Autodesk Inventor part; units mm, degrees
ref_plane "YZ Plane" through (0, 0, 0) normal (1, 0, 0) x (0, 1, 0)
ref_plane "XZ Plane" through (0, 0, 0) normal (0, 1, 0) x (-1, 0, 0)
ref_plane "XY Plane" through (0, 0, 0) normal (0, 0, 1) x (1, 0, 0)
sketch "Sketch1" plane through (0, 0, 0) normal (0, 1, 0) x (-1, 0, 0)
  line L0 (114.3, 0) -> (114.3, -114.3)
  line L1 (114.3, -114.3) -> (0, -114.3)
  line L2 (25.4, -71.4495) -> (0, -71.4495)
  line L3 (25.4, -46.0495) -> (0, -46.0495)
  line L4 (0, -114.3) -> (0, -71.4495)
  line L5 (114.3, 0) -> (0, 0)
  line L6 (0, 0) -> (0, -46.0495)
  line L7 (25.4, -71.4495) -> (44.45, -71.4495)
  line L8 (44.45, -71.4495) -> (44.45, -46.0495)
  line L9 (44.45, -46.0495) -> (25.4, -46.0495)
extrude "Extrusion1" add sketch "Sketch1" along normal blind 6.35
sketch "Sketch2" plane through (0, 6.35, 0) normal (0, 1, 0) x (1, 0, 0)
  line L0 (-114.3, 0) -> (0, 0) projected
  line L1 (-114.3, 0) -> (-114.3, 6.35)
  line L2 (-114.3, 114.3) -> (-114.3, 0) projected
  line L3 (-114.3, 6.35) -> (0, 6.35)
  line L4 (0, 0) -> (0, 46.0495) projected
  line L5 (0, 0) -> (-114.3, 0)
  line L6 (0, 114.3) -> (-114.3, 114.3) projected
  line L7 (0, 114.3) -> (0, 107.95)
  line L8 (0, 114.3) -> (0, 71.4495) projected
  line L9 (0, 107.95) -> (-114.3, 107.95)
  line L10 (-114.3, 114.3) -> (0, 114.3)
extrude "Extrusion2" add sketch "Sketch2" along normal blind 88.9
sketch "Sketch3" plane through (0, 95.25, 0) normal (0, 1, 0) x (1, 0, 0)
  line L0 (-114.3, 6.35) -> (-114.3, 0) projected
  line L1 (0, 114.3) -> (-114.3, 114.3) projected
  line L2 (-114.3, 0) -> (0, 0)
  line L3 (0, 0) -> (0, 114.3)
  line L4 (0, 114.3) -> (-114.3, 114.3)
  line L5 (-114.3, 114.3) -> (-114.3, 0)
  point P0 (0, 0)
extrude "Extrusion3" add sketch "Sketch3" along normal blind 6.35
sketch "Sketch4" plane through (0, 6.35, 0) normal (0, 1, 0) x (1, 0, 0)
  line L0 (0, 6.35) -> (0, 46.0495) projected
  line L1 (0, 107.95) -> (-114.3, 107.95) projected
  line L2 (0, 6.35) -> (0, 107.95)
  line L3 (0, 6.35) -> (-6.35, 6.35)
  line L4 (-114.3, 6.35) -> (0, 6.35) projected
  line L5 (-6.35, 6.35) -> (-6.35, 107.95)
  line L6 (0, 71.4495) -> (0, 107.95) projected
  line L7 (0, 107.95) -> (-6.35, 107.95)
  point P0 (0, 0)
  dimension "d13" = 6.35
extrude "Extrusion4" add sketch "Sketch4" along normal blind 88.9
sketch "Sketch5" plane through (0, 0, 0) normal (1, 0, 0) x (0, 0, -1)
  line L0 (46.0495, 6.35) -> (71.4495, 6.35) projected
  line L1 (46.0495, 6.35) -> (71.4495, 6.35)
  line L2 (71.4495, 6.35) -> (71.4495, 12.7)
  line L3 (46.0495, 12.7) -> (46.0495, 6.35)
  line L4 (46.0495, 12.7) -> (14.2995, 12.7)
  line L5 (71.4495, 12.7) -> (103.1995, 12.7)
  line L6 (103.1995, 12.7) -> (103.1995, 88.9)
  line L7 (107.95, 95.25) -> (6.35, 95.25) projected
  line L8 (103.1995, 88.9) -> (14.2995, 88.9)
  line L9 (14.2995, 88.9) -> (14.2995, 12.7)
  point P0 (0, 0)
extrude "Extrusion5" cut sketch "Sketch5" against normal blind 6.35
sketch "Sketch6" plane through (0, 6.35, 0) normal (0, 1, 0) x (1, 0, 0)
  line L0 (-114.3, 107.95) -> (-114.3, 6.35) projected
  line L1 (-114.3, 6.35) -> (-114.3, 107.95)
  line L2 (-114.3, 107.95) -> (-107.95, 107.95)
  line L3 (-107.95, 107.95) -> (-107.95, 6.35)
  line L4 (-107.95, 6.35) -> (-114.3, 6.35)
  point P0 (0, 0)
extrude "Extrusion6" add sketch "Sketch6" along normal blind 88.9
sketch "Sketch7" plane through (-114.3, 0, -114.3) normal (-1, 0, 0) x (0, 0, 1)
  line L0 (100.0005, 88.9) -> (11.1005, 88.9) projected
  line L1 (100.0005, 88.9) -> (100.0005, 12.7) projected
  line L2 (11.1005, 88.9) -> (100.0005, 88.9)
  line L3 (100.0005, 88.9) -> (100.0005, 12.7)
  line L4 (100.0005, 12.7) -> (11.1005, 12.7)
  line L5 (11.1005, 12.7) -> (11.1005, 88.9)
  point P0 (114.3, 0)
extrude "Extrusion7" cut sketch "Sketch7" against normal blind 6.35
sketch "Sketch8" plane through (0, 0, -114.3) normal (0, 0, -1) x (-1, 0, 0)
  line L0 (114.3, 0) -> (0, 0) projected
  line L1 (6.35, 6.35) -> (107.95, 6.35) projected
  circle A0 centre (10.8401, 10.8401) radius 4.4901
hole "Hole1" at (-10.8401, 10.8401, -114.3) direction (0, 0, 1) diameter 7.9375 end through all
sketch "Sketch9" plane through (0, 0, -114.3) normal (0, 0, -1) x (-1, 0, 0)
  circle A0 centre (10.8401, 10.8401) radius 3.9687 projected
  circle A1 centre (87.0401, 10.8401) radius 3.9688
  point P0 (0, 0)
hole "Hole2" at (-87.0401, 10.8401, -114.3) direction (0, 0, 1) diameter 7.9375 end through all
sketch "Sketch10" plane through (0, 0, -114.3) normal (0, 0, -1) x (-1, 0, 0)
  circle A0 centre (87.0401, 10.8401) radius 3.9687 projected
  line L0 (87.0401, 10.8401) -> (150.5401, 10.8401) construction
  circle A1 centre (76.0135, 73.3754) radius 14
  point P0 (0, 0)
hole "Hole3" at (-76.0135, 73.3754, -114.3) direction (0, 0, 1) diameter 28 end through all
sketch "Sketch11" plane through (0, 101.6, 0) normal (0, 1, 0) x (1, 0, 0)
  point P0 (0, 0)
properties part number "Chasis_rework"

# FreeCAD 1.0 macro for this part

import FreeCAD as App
import Part
import Sketcher
from FreeCAD import Vector
Q = App.Units.Quantity

doc = App.newDocument("Part")
params = doc.addObject("Spreadsheet::Sheet", "Params")
for row, (alias, value) in enumerate([
    ("sketch1_height", "1 in"),
    ("sketch1_width", "4.5 in"),
    ("sketch1_width2", "1.75 in"),
    ("pad1_length", "0.25 in"),
    ("sketch2_width", "4.5 in"),
    ("sketch2_height", "0.25 in"),
    ("pad2_length", "3.5 in"),
    ("sketch3_width", "4.5 in"),
    ("pad3_length", "0.25 in"),
    ("sketch4_width", "0.25 in"),
    ("sketch4_height", "4 in"),
    ("pad4_length", "3.5 in"),
    ("sketch5_width", "3 in"),
    ("sketch5_height", "1 in"),
    ("sketch5_height2", "3.5 in"),
    ("sketch5_width2", "0.25 in"),
    ("pocket1_length", "0.25 in"),
    ("sketch6_height", "4 in"),
    ("sketch6_width", "0.25 in"),
    ("pad5_length", "3.5 in"),
    ("sketch7_width", "3 in"),
    ("sketch7_height", "3.5 in"),
    ("pocket2_length", "0.25 in"),
    ("sketch8_diameter", "0.3125 in"),
    ("hole_diameter", "0.3125 in"),
    ("sketch9_diameter", "0.3125 in"),
    ("hole2_diameter", "0.3125 in"),
    ("hole3_diameter", "28 mm"),
], start=1):
    params.set(f"A{row}", alias)
    params.set(f"B{row}", "=" + value)
    params.setAlias(f"B{row}", alias)

body = doc.addObject("PartDesign::Body", "Body")

sketch1 = body.newObject("Sketcher::SketchObject", "Sketch")
sketch1.AttachmentSupport = (doc.getObject("XZ_Plane"), [""])
sketch1.MapMode = "FlatFace"
sketch1.addGeometry(Part.LineSegment(Vector(-114, -114, 0), Vector(-114, 0, 0)), False)
sketch1.addGeometry(Part.LineSegment(Vector(-114, 0, 0), Vector(0, 0, 0)), False)
sketch1.addGeometry(Part.LineSegment(Vector(0, 0, 0), Vector(0, -46, 0)), False)
sketch1.addGeometry(Part.LineSegment(Vector(0, -46, 0), Vector(-44, -46, 0)), False)
sketch1.addGeometry(Part.LineSegment(Vector(-44, -46, 0), Vector(-44, -71, 0)), False)
sketch1.addGeometry(Part.LineSegment(Vector(-44, -71, 0), Vector(0, -71, 0)), False)
sketch1.addGeometry(Part.LineSegment(Vector(0, -71, 0), Vector(0, -114, 0)), False)
sketch1.addGeometry(Part.LineSegment(Vector(0, -114, 0), Vector(-114, -114, 0)), False)
sketch1.addConstraint(Sketcher.Constraint("Coincident", 0, 2, 1, 1))
sketch1.addConstraint(Sketcher.Constraint("Coincident", 1, 2, 2, 1))
sketch1.addConstraint(Sketcher.Constraint("Coincident", 2, 2, 3, 1))
sketch1.addConstraint(Sketcher.Constraint("Coincident", 3, 2, 4, 1))
sketch1.addConstraint(Sketcher.Constraint("Coincident", 4, 2, 5, 1))
sketch1.addConstraint(Sketcher.Constraint("Coincident", 5, 2, 6, 1))
sketch1.addConstraint(Sketcher.Constraint("Coincident", 6, 2, 7, 1))
sketch1.addConstraint(Sketcher.Constraint("Coincident", 7, 2, 0, 1))
sketch1.addConstraint(Sketcher.Constraint("Vertical", 0))
sketch1.addConstraint(Sketcher.Constraint("Horizontal", 1))
sketch1.addConstraint(Sketcher.Constraint("Vertical", 2))
sketch1.addConstraint(Sketcher.Constraint("Horizontal", 3))
sketch1.addConstraint(Sketcher.Constraint("Vertical", 4))
sketch1.addConstraint(Sketcher.Constraint("Horizontal", 5))
sketch1.addConstraint(Sketcher.Constraint("Vertical", 6))
sketch1.addConstraint(Sketcher.Constraint("Horizontal", 7))
sketch1.addConstraint(Sketcher.Constraint("Coincident", 1, 2, -1, 1))
sketch1.addConstraint(Sketcher.Constraint("PointOnObject", 5, 2, -2))
sketch1.addConstraint(Sketcher.Constraint("Equal", 7, 0))
sketch1.addConstraint(Sketcher.Constraint("DistanceY", 4, 2, 4, 1, Q("1 in")))
sketch1.addConstraint(Sketcher.Constraint("DistanceX", 1, 1, 1, 2, Q("4.5 in")))
sketch1.addConstraint(Sketcher.Constraint("DistanceX", 3, 2, 3, 1, Q("1.75 in")))
sketch1.addConstraint(Sketcher.Constraint("DistanceY", 2, 2, 2, 1, 46.0495))
sketch1.setExpression("Constraints[19]", "Params.sketch1_height")
sketch1.setExpression("Constraints[20]", "Params.sketch1_width")
sketch1.setExpression("Constraints[21]", "Params.sketch1_width2")
pad1 = body.newObject("PartDesign::Pad", "Pad")
pad1.Profile = sketch1
pad1.setExpression("Length", "Params.pad1_length")
pad1.Reversed = True

sketch2 = body.newObject("Sketcher::SketchObject", "Sketch001")
sketch2.AttachmentSupport = (doc.getObject("XZ_Plane"), [""])
sketch2.MapMode = "FlatFace"
sketch2.AttachmentOffset = App.Placement(Vector(0, 0, -0.25 * 25.4), App.Rotation())
sketch2.addGeometry(Part.LineSegment(Vector(-114, -6, 0), Vector(-114, 0, 0)), False)
sketch2.addGeometry(Part.LineSegment(Vector(-114, 0, 0), Vector(0, 0, 0)), False)
sketch2.addGeometry(Part.LineSegment(Vector(0, 0, 0), Vector(0, -6, 0)), False)
sketch2.addGeometry(Part.LineSegment(Vector(0, -6, 0), Vector(-114, -6, 0)), False)
sketch2.addGeometry(Part.LineSegment(Vector(-114, -114, 0), Vector(-114, -108, 0)), False)
sketch2.addGeometry(Part.LineSegment(Vector(-114, -108, 0), Vector(0, -108, 0)), False)
sketch2.addGeometry(Part.LineSegment(Vector(0, -108, 0), Vector(0, -114, 0)), False)
sketch2.addGeometry(Part.LineSegment(Vector(0, -114, 0), Vector(-114, -114, 0)), False)
sketch2.addConstraint(Sketcher.Constraint("Coincident", 0, 2, 1, 1))
sketch2.addConstraint(Sketcher.Constraint("Coincident", 1, 2, 2, 1))
sketch2.addConstraint(Sketcher.Constraint("Coincident", 2, 2, 3, 1))
sketch2.addConstraint(Sketcher.Constraint("Coincident", 3, 2, 0, 1))
sketch2.addConstraint(Sketcher.Constraint("Coincident", 4, 2, 5, 1))
sketch2.addConstraint(Sketcher.Constraint("Coincident", 5, 2, 6, 1))
sketch2.addConstraint(Sketcher.Constraint("Coincident", 6, 2, 7, 1))
sketch2.addConstraint(Sketcher.Constraint("Coincident", 7, 2, 4, 1))
sketch2.addConstraint(Sketcher.Constraint("Vertical", 0))
sketch2.addConstraint(Sketcher.Constraint("Horizontal", 1))
sketch2.addConstraint(Sketcher.Constraint("Vertical", 2))
sketch2.addConstraint(Sketcher.Constraint("Horizontal", 3))
sketch2.addConstraint(Sketcher.Constraint("Vertical", 4))
sketch2.addConstraint(Sketcher.Constraint("Horizontal", 5))
sketch2.addConstraint(Sketcher.Constraint("Vertical", 6))
sketch2.addConstraint(Sketcher.Constraint("Horizontal", 7))
sketch2.addConstraint(Sketcher.Constraint("Coincident", 1, 2, -1, 1))
sketch2.addConstraint(Sketcher.Constraint("PointOnObject", 5, 2, -2))
sketch2.addConstraint(Sketcher.Constraint("Vertical", 3, 2, 4, 2))
sketch2.addConstraint(Sketcher.Constraint("Equal", 2, 4))
sketch2.addConstraint(Sketcher.Constraint("DistanceX", 1, 1, 1, 2, Q("4.5 in")))
sketch2.addConstraint(Sketcher.Constraint("DistanceY", 4, 2, 3, 2, Q("4 in")))
sketch2.addConstraint(Sketcher.Constraint("DistanceY", 0, 1, 0, 2, Q("0.25 in")))
sketch2.setExpression("Constraints[20]", "Params.sketch2_width")
sketch2.setExpression("Constraints[22]", "Params.sketch2_height")
pad2 = body.newObject("PartDesign::Pad", "Pad001")
pad2.Profile = sketch2
pad2.setExpression("Length", "Params.pad2_length")
pad2.Reversed = True

sketch3 = body.newObject("Sketcher::SketchObject", "Sketch002")
sketch3.AttachmentSupport = (doc.getObject("XZ_Plane"), [""])
sketch3.MapMode = "FlatFace"
sketch3.AttachmentOffset = App.Placement(Vector(0, 0, -3.75 * 25.4), App.Rotation())
sketch3.addGeometry(Part.LineSegment(Vector(-114, -114, 0), Vector(-114, 0, 0)), False)
sketch3.addGeometry(Part.LineSegment(Vector(-114, 0, 0), Vector(0, 0, 0)), False)
sketch3.addGeometry(Part.LineSegment(Vector(0, 0, 0), Vector(0, -114, 0)), False)
sketch3.addGeometry(Part.LineSegment(Vector(0, -114, 0), Vector(-114, -114, 0)), False)
sketch3.addConstraint(Sketcher.Constraint("Coincident", 0, 2, 1, 1))
sketch3.addConstraint(Sketcher.Constraint("Coincident", 1, 2, 2, 1))
sketch3.addConstraint(Sketcher.Constraint("Coincident", 2, 2, 3, 1))
sketch3.addConstraint(Sketcher.Constraint("Coincident", 3, 2, 0, 1))
sketch3.addConstraint(Sketcher.Constraint("Vertical", 0))
sketch3.addConstraint(Sketcher.Constraint("Horizontal", 1))
sketch3.addConstraint(Sketcher.Constraint("Vertical", 2))
sketch3.addConstraint(Sketcher.Constraint("Horizontal", 3))
sketch3.addConstraint(Sketcher.Constraint("Coincident", 1, 2, -1, 1))
sketch3.addConstraint(Sketcher.Constraint("Equal", 3, 0))
sketch3.addConstraint(Sketcher.Constraint("DistanceX", 1, 1, 1, 2, Q("4.5 in")))
sketch3.setExpression("Constraints[10]", "Params.sketch3_width")
pad3 = body.newObject("PartDesign::Pad", "Pad002")
pad3.Profile = sketch3
pad3.setExpression("Length", "Params.pad3_length")
pad3.Reversed = True

sketch4 = body.newObject("Sketcher::SketchObject", "Sketch003")
sketch4.AttachmentSupport = (doc.getObject("XZ_Plane"), [""])
sketch4.MapMode = "FlatFace"
sketch4.AttachmentOffset = App.Placement(Vector(0, 0, -0.25 * 25.4), App.Rotation())
sketch4.addGeometry(Part.LineSegment(Vector(-6, -6, 0), Vector(0, -6, 0)), False)
sketch4.addGeometry(Part.LineSegment(Vector(0, -6, 0), Vector(0, -108, 0)), False)
sketch4.addGeometry(Part.LineSegment(Vector(0, -108, 0), Vector(-6, -108, 0)), False)
sketch4.addGeometry(Part.LineSegment(Vector(-6, -108, 0), Vector(-6, -6, 0)), False)
sketch4.addConstraint(Sketcher.Constraint("Coincident", 0, 2, 1, 1))
sketch4.addConstraint(Sketcher.Constraint("Coincident", 1, 2, 2, 1))
sketch4.addConstraint(Sketcher.Constraint("Coincident", 2, 2, 3, 1))
sketch4.addConstraint(Sketcher.Constraint("Coincident", 3, 2, 0, 1))
sketch4.addConstraint(Sketcher.Constraint("Horizontal", 0))
sketch4.addConstraint(Sketcher.Constraint("Vertical", 1))
sketch4.addConstraint(Sketcher.Constraint("Horizontal", 2))
sketch4.addConstraint(Sketcher.Constraint("Vertical", 3))
sketch4.addConstraint(Sketcher.Constraint("PointOnObject", 0, 2, -2))
sketch4.addConstraint(Sketcher.Constraint("DistanceX", 0, 1, 0, 2, Q("0.25 in")))
sketch4.addConstraint(Sketcher.Constraint("DistanceY", 1, 2, 1, 1, Q("4 in")))
sketch4.addConstraint(Sketcher.Constraint("DistanceY", 0, 2, -1, 1, Q("0.25 in")))
sketch4.setExpression("Constraints[9]", "Params.sketch4_width")
sketch4.setExpression("Constraints[10]", "Params.sketch4_height")
pad4 = body.newObject("PartDesign::Pad", "Pad003")
pad4.Profile = sketch4
pad4.setExpression("Length", "Params.pad4_length")
pad4.Reversed = True

sketch5 = body.newObject("Sketcher::SketchObject", "Sketch004")
sketch5.AttachmentSupport = (doc.getObject("YZ_Plane"), [""])
sketch5.MapMode = "FlatFace"
sketch5.addGeometry(Part.LineSegment(Vector(13, -46, 0), Vector(6, -46, 0)), False)
sketch5.addGeometry(Part.LineSegment(Vector(6, -46, 0), Vector(6, -71, 0)), False)
sketch5.addGeometry(Part.LineSegment(Vector(6, -71, 0), Vector(13, -71, 0)), False)
sketch5.addGeometry(Part.LineSegment(Vector(13, -71, 0), Vector(13, -103, 0)), False)
sketch5.addGeometry(Part.LineSegment(Vector(13, -103, 0), Vector(89, -103, 0)), False)
sketch5.addGeometry(Part.LineSegment(Vector(89, -103, 0), Vector(89, -14, 0)), False)
sketch5.addGeometry(Part.LineSegment(Vector(89, -14, 0), Vector(13, -14, 0)), False)
sketch5.addGeometry(Part.LineSegment(Vector(13, -14, 0), Vector(13, -46, 0)), False)
sketch5.addConstraint(Sketcher.Constraint("Coincident", 0, 2, 1, 1))
sketch5.addConstraint(Sketcher.Constraint("Coincident", 1, 2, 2, 1))
sketch5.addConstraint(Sketcher.Constraint("Coincident", 2, 2, 3, 1))
sketch5.addConstraint(Sketcher.Constraint("Coincident", 3, 2, 4, 1))
sketch5.addConstraint(Sketcher.Constraint("Coincident", 4, 2, 5, 1))
sketch5.addConstraint(Sketcher.Constraint("Coincident", 5, 2, 6, 1))
sketch5.addConstraint(Sketcher.Constraint("Coincident", 6, 2, 7, 1))
sketch5.addConstraint(Sketcher.Constraint("Coincident", 7, 2, 0, 1))
sketch5.addConstraint(Sketcher.Constraint("Horizontal", 0))
sketch5.addConstraint(Sketcher.Constraint("Vertical", 1))
sketch5.addConstraint(Sketcher.Constraint("Horizontal", 2))
sketch5.addConstraint(Sketcher.Constraint("Vertical", 3))
sketch5.addConstraint(Sketcher.Constraint("Horizontal", 4))
sketch5.addConstraint(Sketcher.Constraint("Vertical", 5))
sketch5.addConstraint(Sketcher.Constraint("Horizontal", 6))
sketch5.addConstraint(Sketcher.Constraint("Vertical", 7))
sketch5.addConstraint(Sketcher.Constraint("Vertical", 3, 2, 6, 2))
sketch5.addConstraint(Sketcher.Constraint("Equal", 3, 7))
sketch5.addConstraint(Sketcher.Constraint("DistanceX", 4, 1, 4, 2, Q("3 in")))
sketch5.addConstraint(Sketcher.Constraint("DistanceY", 1, 2, 1, 1, Q("1 in")))
sketch5.addConstraint(Sketcher.Constraint("DistanceY", 5, 1, 5, 2, Q("3.5 in")))
sketch5.addConstraint(Sketcher.Constraint("DistanceX", 0, 2, 0, 1, Q("0.25 in")))
sketch5.addConstraint(Sketcher.Constraint("DistanceX", -1, 1, 2, 2, Q("0.5 in")))
sketch5.addConstraint(Sketcher.Constraint("DistanceY", 0, 2, -1, 1, 46.0495))
sketch5.setExpression("Constraints[18]", "Params.sketch5_width")
sketch5.setExpression("Constraints[19]", "Params.sketch5_height")
sketch5.setExpression("Constraints[20]", "Params.sketch5_height2")
sketch5.setExpression("Constraints[21]", "Params.sketch5_width2")
pocket1 = body.newObject("PartDesign::Pocket", "Pocket")
pocket1.Profile = sketch5
pocket1.setExpression("Length", "Params.pocket1_length")

sketch6 = body.newObject("Sketcher::SketchObject", "Sketch005")
sketch6.AttachmentSupport = (doc.getObject("XZ_Plane"), [""])
sketch6.MapMode = "FlatFace"
sketch6.AttachmentOffset = App.Placement(Vector(0, 0, -0.25 * 25.4), App.Rotation())
sketch6.addGeometry(Part.LineSegment(Vector(-108, -108, 0), Vector(-114, -108, 0)), False)
sketch6.addGeometry(Part.LineSegment(Vector(-114, -108, 0), Vector(-114, -6, 0)), False)
sketch6.addGeometry(Part.LineSegment(Vector(-114, -6, 0), Vector(-108, -6, 0)), False)
sketch6.addGeometry(Part.LineSegment(Vector(-108, -6, 0), Vector(-108, -108, 0)), False)
sketch6.addConstraint(Sketcher.Constraint("Coincident", 0, 2, 1, 1))
sketch6.addConstraint(Sketcher.Constraint("Coincident", 1, 2, 2, 1))
sketch6.addConstraint(Sketcher.Constraint("Coincident", 2, 2, 3, 1))
sketch6.addConstraint(Sketcher.Constraint("Coincident", 3, 2, 0, 1))
sketch6.addConstraint(Sketcher.Constraint("Horizontal", 0))
sketch6.addConstraint(Sketcher.Constraint("Vertical", 1))
sketch6.addConstraint(Sketcher.Constraint("Horizontal", 2))
sketch6.addConstraint(Sketcher.Constraint("Vertical", 3))
sketch6.addConstraint(Sketcher.Constraint("DistanceY", 1, 1, 1, 2, Q("4 in")))
sketch6.addConstraint(Sketcher.Constraint("DistanceX", 0, 2, 0, 1, Q("0.25 in")))
sketch6.addConstraint(Sketcher.Constraint("DistanceX", 0, 2, -1, 1, Q("4.5 in")))
sketch6.addConstraint(Sketcher.Constraint("DistanceY", 0, 2, -1, 1, Q("4.25 in")))
sketch6.setExpression("Constraints[8]", "Params.sketch6_height")
sketch6.setExpression("Constraints[9]", "Params.sketch6_width")
pad5 = body.newObject("PartDesign::Pad", "Pad004")
pad5.Profile = sketch6
pad5.setExpression("Length", "Params.pad5_length")
pad5.Reversed = True

sketch7 = body.newObject("Sketcher::SketchObject", "Sketch006")
sketch7.AttachmentSupport = (doc.getObject("YZ_Plane"), [""])
sketch7.MapMode = "FlatFace"
sketch7.AttachmentOffset = App.Placement(Vector(0, 0, -4.5 * 25.4), App.Rotation())
sketch7.addGeometry(Part.LineSegment(Vector(13, -14, 0), Vector(89, -14, 0)), False)
sketch7.addGeometry(Part.LineSegment(Vector(89, -14, 0), Vector(89, -103, 0)), False)
sketch7.addGeometry(Part.LineSegment(Vector(89, -103, 0), Vector(13, -103, 0)), False)
sketch7.addGeometry(Part.LineSegment(Vector(13, -103, 0), Vector(13, -14, 0)), False)
sketch7.addConstraint(Sketcher.Constraint("Coincident", 0, 2, 1, 1))
sketch7.addConstraint(Sketcher.Constraint("Coincident", 1, 2, 2, 1))
sketch7.addConstraint(Sketcher.Constraint("Coincident", 2, 2, 3, 1))
sketch7.addConstraint(Sketcher.Constraint("Coincident", 3, 2, 0, 1))
sketch7.addConstraint(Sketcher.Constraint("Horizontal", 0))
sketch7.addConstraint(Sketcher.Constraint("Vertical", 1))
sketch7.addConstraint(Sketcher.Constraint("Horizontal", 2))
sketch7.addConstraint(Sketcher.Constraint("Vertical", 3))
sketch7.addConstraint(Sketcher.Constraint("DistanceX", 0, 1, 0, 2, Q("3 in")))
sketch7.addConstraint(Sketcher.Constraint("DistanceY", 1, 2, 1, 1, Q("3.5 in")))
sketch7.addConstraint(Sketcher.Constraint("DistanceX", -1, 1, 0, 2, Q("3.5 in")))
sketch7.addConstraint(Sketcher.Constraint("DistanceY", 0, 2, -1, 1, 14.2995))
sketch7.setExpression("Constraints[8]", "Params.sketch7_width")
sketch7.setExpression("Constraints[9]", "Params.sketch7_height")
pocket2 = body.newObject("PartDesign::Pocket", "Pocket001")
pocket2.Profile = sketch7
pocket2.setExpression("Length", "Params.pocket2_length")
pocket2.Reversed = True

sketch8 = body.newObject("Sketcher::SketchObject", "Sketch007")
sketch8.AttachmentSupport = (doc.getObject("XY_Plane"), [""])
sketch8.MapMode = "FlatFace"
sketch8.AttachmentOffset = App.Placement(Vector(0, 0, -4.5 * 25.4), App.Rotation())
sketch8.addGeometry(Part.Circle(Vector(-10.8, 10.8, 0), Vector(0, 0, 1), 4), False)
sketch8.addConstraint(Sketcher.Constraint("Diameter", 0, Q("0.3125 in")))
sketch8.addConstraint(Sketcher.Constraint("DistanceX", 0, 3, -1, 1, 10.84))
sketch8.addConstraint(Sketcher.Constraint("DistanceY", -1, 1, 0, 3, 10.84))
sketch8.setExpression("Constraints[0]", "Params.sketch8_diameter")
doc.recompute()
hole = body.newObject("PartDesign::Hole", "Hole")
hole.Profile = sketch8
hole.ThreadType = "None"
hole.setExpression("Diameter", "Params.hole_diameter")
hole.DepthType = "ThroughAll"
hole.Reversed = True

sketch9 = body.newObject("Sketcher::SketchObject", "Sketch008")
sketch9.AttachmentSupport = (doc.getObject("XY_Plane"), [""])
sketch9.MapMode = "FlatFace"
sketch9.AttachmentOffset = App.Placement(Vector(0, 0, -4.5 * 25.4), App.Rotation())
sketch9.addGeometry(Part.Circle(Vector(-87, 10.8, 0), Vector(0, 0, 1), 4), False)
sketch9.addConstraint(Sketcher.Constraint("Diameter", 0, Q("0.3125 in")))
sketch9.addConstraint(Sketcher.Constraint("DistanceX", 0, 3, -1, 1, 87.04))
sketch9.addConstraint(Sketcher.Constraint("DistanceY", -1, 1, 0, 3, 10.84))
sketch9.setExpression("Constraints[0]", "Params.sketch9_diameter")
doc.recompute()
hole2 = body.newObject("PartDesign::Hole", "Hole001")
hole2.Profile = sketch9
hole2.ThreadType = "None"
hole2.setExpression("Diameter", "Params.hole2_diameter")
hole2.DepthType = "ThroughAll"
hole2.Reversed = True

sketch10 = body.newObject("Sketcher::SketchObject", "Sketch009")
sketch10.AttachmentSupport = (doc.getObject("XY_Plane"), [""])
sketch10.MapMode = "FlatFace"
sketch10.AttachmentOffset = App.Placement(Vector(0, 0, -4.5 * 25.4), App.Rotation())
sketch10.addGeometry(Part.Circle(Vector(-76, 73, 0), Vector(0, 0, 1), 14), False)
sketch10.addConstraint(Sketcher.Constraint("Diameter", 0, 28.0))
sketch10.addConstraint(Sketcher.Constraint("DistanceY", -1, 1, 0, 3, Q("2.8888 in")))
sketch10.addConstraint(Sketcher.Constraint("DistanceX", 0, 3, -1, 1, 76.0135))
doc.recompute()
hole3 = body.newObject("PartDesign::Hole", "Hole002")
hole3.Profile = sketch10
hole3.ThreadType = "None"
hole3.setExpression("Diameter", "Params.hole3_diameter")
hole3.DepthType = "ThroughAll"
hole3.Reversed = True

doc.recompute()
